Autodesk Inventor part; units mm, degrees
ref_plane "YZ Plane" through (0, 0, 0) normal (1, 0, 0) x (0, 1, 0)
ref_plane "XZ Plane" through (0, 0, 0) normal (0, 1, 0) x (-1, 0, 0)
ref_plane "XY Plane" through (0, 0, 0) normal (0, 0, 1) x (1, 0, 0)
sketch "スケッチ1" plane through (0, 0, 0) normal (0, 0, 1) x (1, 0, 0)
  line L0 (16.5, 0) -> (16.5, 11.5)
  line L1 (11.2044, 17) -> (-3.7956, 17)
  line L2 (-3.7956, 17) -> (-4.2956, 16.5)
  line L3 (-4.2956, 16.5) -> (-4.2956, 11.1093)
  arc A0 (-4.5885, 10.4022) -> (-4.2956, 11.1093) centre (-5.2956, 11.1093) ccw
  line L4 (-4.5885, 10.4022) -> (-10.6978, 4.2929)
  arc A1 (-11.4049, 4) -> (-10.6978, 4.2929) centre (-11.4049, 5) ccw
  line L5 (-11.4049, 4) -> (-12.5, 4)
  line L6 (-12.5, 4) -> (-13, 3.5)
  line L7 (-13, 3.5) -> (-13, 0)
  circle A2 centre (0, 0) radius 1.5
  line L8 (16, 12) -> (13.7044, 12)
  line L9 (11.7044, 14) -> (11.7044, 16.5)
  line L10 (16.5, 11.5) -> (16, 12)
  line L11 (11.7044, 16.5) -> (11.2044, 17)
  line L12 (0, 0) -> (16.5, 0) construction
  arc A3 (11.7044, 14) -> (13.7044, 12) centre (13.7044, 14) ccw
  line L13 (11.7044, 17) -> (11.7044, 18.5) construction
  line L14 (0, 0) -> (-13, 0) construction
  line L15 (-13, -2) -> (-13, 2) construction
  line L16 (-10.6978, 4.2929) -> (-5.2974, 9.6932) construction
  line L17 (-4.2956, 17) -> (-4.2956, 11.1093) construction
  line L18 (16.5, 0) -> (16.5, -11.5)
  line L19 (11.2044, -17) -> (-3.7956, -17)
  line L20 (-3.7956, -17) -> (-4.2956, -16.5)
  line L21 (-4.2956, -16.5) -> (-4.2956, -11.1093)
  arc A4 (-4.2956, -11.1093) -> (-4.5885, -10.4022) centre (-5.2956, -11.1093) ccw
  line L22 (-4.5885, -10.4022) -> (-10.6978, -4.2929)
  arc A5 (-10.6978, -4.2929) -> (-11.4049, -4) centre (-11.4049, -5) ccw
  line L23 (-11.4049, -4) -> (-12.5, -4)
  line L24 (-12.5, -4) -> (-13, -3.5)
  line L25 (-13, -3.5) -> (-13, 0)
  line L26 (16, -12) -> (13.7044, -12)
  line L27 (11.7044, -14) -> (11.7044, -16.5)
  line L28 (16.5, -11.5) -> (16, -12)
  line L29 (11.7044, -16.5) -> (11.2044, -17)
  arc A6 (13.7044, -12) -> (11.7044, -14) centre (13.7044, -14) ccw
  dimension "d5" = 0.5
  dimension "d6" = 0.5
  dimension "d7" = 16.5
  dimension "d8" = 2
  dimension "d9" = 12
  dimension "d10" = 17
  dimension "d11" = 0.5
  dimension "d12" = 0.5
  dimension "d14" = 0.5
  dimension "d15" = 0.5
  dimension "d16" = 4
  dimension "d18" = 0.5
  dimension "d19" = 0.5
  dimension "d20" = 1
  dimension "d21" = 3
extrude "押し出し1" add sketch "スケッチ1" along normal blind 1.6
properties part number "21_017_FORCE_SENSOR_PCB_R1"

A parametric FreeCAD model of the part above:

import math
import FreeCAD as App
import Part
import Sketcher
Q = App.Units.Quantity

doc = App.newDocument("Part")
body = doc.addObject("PartDesign::Body", "Body")

sketch1 = body.newObject("Sketcher::SketchObject", "Sketch")
sketch1.AttachmentSupport = (doc.getObject("XY_Plane"), [""])
sketch1.MapMode = "FlatFace"
sketch1.addGeometry([
    Part.LineSegment(App.Vector(16.5, -11.5, 0), App.Vector(16.5, 11.5, 0)),
    Part.LineSegment(App.Vector(16.5, 11.5, 0), App.Vector(16, 12, 0)),
    Part.LineSegment(App.Vector(16, 12, 0), App.Vector(13.7044, 12, 0)),
    Part.ArcOfCircle(Part.Circle(App.Vector(13.7044, 14, 0), App.Vector(0, 0, 1), 2), math.radians(180), math.radians(270)),
    Part.LineSegment(App.Vector(11.7044, 14, 0), App.Vector(11.7044, 16.5, 0)),
    Part.LineSegment(App.Vector(11.7044, 16.5, 0), App.Vector(11.2044, 17, 0)),
    Part.LineSegment(App.Vector(11.2044, 17, 0), App.Vector(-3.7956, 17, 0)),
    Part.LineSegment(App.Vector(-3.7956, 17, 0), App.Vector(-4.2956, 16.5, 0)),
    Part.LineSegment(App.Vector(-4.2956, 16.5, 0), App.Vector(-4.2956, 11.1093, 0)),
    Part.ArcOfCircle(Part.Circle(App.Vector(-5.2956, 11.1093, 0), App.Vector(0, 0, 1), 0.99999), math.radians(-45), math.radians(0)),
    Part.LineSegment(App.Vector(-4.5885, 10.4022, 0), App.Vector(-10.6978, 4.2929, 0)),
    Part.ArcOfCircle(Part.Circle(App.Vector(-11.4049, 5, 0), App.Vector(0, 0, 1), 1), math.radians(-90), math.radians(-45)),
    Part.LineSegment(App.Vector(-11.4049, 4, 0), App.Vector(-12.5, 4, 0)),
    Part.LineSegment(App.Vector(-12.5, 4, 0), App.Vector(-13, 3.5, 0)),
    Part.LineSegment(App.Vector(-13, 3.5, 0), App.Vector(-13, -3.5, 0)),
    Part.LineSegment(App.Vector(-13, -3.5, 0), App.Vector(-12.5, -4, 0)),
    Part.LineSegment(App.Vector(-12.5, -4, 0), App.Vector(-11.4049, -4, 0)),
    Part.ArcOfCircle(Part.Circle(App.Vector(-11.4049, -5, 0), App.Vector(0, 0, 1), 0.99999), math.radians(45), math.radians(90)),
    Part.LineSegment(App.Vector(-10.6978, -4.2929, 0), App.Vector(-4.5885, -10.4022, 0)),
    Part.ArcOfCircle(Part.Circle(App.Vector(-5.2956, -11.1093, 0), App.Vector(0, 0, 1), 1), math.radians(0), math.radians(45)),
    Part.LineSegment(App.Vector(-4.2956, -11.1093, 0), App.Vector(-4.2956, -16.5, 0)),
    Part.LineSegment(App.Vector(-4.2956, -16.5, 0), App.Vector(-3.7956, -17, 0)),
    Part.LineSegment(App.Vector(-3.7956, -17, 0), App.Vector(11.2044, -17, 0)),
    Part.LineSegment(App.Vector(11.2044, -17, 0), App.Vector(11.7044, -16.5, 0)),
    Part.LineSegment(App.Vector(11.7044, -16.5, 0), App.Vector(11.7044, -14, 0)),
    Part.ArcOfCircle(Part.Circle(App.Vector(13.7044, -14, 0), App.Vector(0, 0, 1), 2), math.radians(90), math.radians(180)),
    Part.LineSegment(App.Vector(13.7044, -12, 0), App.Vector(16, -12, 0)),
    Part.LineSegment(App.Vector(16, -12, 0), App.Vector(16.5, -11.5, 0)),
    Part.Circle(App.Vector(0, 0, 0), App.Vector(0, 0, 1), 1.5),
], False)
sketch1.addConstraint([
    Sketcher.Constraint("Coincident", 0, 2, 1, 1),
    Sketcher.Constraint("Coincident", 1, 2, 2, 1),
    Sketcher.Constraint("Tangent", 2, 2, 3, 2),
    Sketcher.Constraint("Tangent", 3, 1, 4, 1),
    Sketcher.Constraint("Coincident", 4, 2, 5, 1),
    Sketcher.Constraint("Coincident", 5, 2, 6, 1),
    Sketcher.Constraint("Coincident", 6, 2, 7, 1),
    Sketcher.Constraint("Coincident", 7, 2, 8, 1),
    Sketcher.Constraint("Tangent", 8, 2, 9, 2),
    Sketcher.Constraint("Tangent", 9, 1, 10, 1),
    Sketcher.Constraint("Tangent", 10, 2, 11, 2),
    Sketcher.Constraint("Tangent", 11, 1, 12, 1),
    Sketcher.Constraint("Coincident", 12, 2, 13, 1),
    Sketcher.Constraint("Coincident", 13, 2, 14, 1),
    Sketcher.Constraint("Coincident", 14, 2, 15, 1),
    Sketcher.Constraint("Coincident", 15, 2, 16, 1),
    Sketcher.Constraint("Tangent", 16, 2, 17, 2),
    Sketcher.Constraint("Tangent", 17, 1, 18, 1),
    Sketcher.Constraint("Tangent", 18, 2, 19, 2),
    Sketcher.Constraint("Tangent", 19, 1, 20, 1),
    Sketcher.Constraint("Coincident", 20, 2, 21, 1),
    Sketcher.Constraint("Coincident", 21, 2, 22, 1),
    Sketcher.Constraint("Coincident", 22, 2, 23, 1),
    Sketcher.Constraint("Coincident", 23, 2, 24, 1),
    Sketcher.Constraint("Tangent", 24, 2, 25, 2),
    Sketcher.Constraint("Tangent", 25, 1, 26, 1),
    Sketcher.Constraint("Coincident", 26, 2, 27, 1),
    Sketcher.Constraint("Coincident", 27, 2, 0, 1),
    Sketcher.Constraint("Vertical", 0),
    Sketcher.Constraint("Horizontal", 2),
    Sketcher.Constraint("Vertical", 4),
    Sketcher.Constraint("Horizontal", 6),
    Sketcher.Constraint("Vertical", 8),
    Sketcher.Constraint("Horizontal", 12),
    Sketcher.Constraint("Vertical", 14),
    Sketcher.Constraint("Horizontal", 16),
    Sketcher.Constraint("Vertical", 20),
    Sketcher.Constraint("Horizontal", 22),
    Sketcher.Constraint("Vertical", 24),
    Sketcher.Constraint("Horizontal", 26),
    Sketcher.Constraint("Coincident", 28, 3, -1, 1),
    Sketcher.Constraint("Equal", 9, 11),
    Sketcher.Constraint("Equal", 11, 17),
    Sketcher.Constraint("Equal", 17, 19),
    Sketcher.Constraint("Equal", 3, 25),
    Sketcher.Constraint("Symmetric", 11, 3, 17, 3, -1),
    Sketcher.Constraint("Symmetric", 9, 3, 19, 3, -1),
    Sketcher.Constraint("Symmetric", 3, 3, 25, 3, -1),
    Sketcher.Constraint("Symmetric", 6, 2, 21, 2, -1),
    Sketcher.Constraint("Parallel", 1, 5),
    Sketcher.Constraint("Perpendicular", 5, 7),
    Sketcher.Constraint("Parallel", 7, 10),
    Sketcher.Constraint("Parallel", 10, 13),
    Sketcher.Constraint("Perpendicular", 13, 15),
    Sketcher.Constraint("Parallel", 15, 18),
    Sketcher.Constraint("Parallel", 18, 21),
    Sketcher.Constraint("Perpendicular", 21, 23),
    Sketcher.Constraint("Parallel", 23, 27),
    Sketcher.Constraint("Horizontal", 4, 2, 7, 2),
    Sketcher.Constraint("Horizontal", 20, 2, 23, 2),
    Sketcher.Constraint("Vertical", 12, 2, 15, 2),
    Sketcher.Constraint("Vertical", 1, 2, 26, 2),
    Sketcher.Constraint("Equal", 1, 5),
    Sketcher.Constraint("Equal", 7, 13),
    Sketcher.Constraint("Diameter", 28, Q("3 mm")),
    Sketcher.Constraint("Radius", 3, Q("2 mm")),
    Sketcher.Constraint("Radius", 9, Q("1 mm")),
    Sketcher.Constraint("DistanceY", -1, 1, 1, 2, Q("12 mm")),
    Sketcher.Constraint("DistanceY", -1, 1, 5, 2, Q("17 mm")),
    Sketcher.Constraint("DistanceY", -1, 1, 11, 1, Q("4 mm")),
    Sketcher.Constraint("DistanceX", 9, 3, 3, 1, Q("17 mm")),
    Sketcher.Constraint("DistanceX", -1, 1, 0, 2, Q("16.5 mm")),
    Sketcher.Constraint("DistanceY", -1, 1, 4, 2, Q("16.5 mm")),
    Sketcher.Constraint("DistanceX", 13, 2, -1, 1, Q("13 mm")),
    Sketcher.Constraint("DistanceX", 12, 2, 12, 1, Q("1.095 mm")),
    Sketcher.Constraint("DistanceX", 2, 2, 2, 1, Q("2.2956 mm")),
])
pad1 = body.newObject("PartDesign::Pad", "Pad")
pad1.Profile = sketch1
pad1.Length = 1.6

doc.recompute()
